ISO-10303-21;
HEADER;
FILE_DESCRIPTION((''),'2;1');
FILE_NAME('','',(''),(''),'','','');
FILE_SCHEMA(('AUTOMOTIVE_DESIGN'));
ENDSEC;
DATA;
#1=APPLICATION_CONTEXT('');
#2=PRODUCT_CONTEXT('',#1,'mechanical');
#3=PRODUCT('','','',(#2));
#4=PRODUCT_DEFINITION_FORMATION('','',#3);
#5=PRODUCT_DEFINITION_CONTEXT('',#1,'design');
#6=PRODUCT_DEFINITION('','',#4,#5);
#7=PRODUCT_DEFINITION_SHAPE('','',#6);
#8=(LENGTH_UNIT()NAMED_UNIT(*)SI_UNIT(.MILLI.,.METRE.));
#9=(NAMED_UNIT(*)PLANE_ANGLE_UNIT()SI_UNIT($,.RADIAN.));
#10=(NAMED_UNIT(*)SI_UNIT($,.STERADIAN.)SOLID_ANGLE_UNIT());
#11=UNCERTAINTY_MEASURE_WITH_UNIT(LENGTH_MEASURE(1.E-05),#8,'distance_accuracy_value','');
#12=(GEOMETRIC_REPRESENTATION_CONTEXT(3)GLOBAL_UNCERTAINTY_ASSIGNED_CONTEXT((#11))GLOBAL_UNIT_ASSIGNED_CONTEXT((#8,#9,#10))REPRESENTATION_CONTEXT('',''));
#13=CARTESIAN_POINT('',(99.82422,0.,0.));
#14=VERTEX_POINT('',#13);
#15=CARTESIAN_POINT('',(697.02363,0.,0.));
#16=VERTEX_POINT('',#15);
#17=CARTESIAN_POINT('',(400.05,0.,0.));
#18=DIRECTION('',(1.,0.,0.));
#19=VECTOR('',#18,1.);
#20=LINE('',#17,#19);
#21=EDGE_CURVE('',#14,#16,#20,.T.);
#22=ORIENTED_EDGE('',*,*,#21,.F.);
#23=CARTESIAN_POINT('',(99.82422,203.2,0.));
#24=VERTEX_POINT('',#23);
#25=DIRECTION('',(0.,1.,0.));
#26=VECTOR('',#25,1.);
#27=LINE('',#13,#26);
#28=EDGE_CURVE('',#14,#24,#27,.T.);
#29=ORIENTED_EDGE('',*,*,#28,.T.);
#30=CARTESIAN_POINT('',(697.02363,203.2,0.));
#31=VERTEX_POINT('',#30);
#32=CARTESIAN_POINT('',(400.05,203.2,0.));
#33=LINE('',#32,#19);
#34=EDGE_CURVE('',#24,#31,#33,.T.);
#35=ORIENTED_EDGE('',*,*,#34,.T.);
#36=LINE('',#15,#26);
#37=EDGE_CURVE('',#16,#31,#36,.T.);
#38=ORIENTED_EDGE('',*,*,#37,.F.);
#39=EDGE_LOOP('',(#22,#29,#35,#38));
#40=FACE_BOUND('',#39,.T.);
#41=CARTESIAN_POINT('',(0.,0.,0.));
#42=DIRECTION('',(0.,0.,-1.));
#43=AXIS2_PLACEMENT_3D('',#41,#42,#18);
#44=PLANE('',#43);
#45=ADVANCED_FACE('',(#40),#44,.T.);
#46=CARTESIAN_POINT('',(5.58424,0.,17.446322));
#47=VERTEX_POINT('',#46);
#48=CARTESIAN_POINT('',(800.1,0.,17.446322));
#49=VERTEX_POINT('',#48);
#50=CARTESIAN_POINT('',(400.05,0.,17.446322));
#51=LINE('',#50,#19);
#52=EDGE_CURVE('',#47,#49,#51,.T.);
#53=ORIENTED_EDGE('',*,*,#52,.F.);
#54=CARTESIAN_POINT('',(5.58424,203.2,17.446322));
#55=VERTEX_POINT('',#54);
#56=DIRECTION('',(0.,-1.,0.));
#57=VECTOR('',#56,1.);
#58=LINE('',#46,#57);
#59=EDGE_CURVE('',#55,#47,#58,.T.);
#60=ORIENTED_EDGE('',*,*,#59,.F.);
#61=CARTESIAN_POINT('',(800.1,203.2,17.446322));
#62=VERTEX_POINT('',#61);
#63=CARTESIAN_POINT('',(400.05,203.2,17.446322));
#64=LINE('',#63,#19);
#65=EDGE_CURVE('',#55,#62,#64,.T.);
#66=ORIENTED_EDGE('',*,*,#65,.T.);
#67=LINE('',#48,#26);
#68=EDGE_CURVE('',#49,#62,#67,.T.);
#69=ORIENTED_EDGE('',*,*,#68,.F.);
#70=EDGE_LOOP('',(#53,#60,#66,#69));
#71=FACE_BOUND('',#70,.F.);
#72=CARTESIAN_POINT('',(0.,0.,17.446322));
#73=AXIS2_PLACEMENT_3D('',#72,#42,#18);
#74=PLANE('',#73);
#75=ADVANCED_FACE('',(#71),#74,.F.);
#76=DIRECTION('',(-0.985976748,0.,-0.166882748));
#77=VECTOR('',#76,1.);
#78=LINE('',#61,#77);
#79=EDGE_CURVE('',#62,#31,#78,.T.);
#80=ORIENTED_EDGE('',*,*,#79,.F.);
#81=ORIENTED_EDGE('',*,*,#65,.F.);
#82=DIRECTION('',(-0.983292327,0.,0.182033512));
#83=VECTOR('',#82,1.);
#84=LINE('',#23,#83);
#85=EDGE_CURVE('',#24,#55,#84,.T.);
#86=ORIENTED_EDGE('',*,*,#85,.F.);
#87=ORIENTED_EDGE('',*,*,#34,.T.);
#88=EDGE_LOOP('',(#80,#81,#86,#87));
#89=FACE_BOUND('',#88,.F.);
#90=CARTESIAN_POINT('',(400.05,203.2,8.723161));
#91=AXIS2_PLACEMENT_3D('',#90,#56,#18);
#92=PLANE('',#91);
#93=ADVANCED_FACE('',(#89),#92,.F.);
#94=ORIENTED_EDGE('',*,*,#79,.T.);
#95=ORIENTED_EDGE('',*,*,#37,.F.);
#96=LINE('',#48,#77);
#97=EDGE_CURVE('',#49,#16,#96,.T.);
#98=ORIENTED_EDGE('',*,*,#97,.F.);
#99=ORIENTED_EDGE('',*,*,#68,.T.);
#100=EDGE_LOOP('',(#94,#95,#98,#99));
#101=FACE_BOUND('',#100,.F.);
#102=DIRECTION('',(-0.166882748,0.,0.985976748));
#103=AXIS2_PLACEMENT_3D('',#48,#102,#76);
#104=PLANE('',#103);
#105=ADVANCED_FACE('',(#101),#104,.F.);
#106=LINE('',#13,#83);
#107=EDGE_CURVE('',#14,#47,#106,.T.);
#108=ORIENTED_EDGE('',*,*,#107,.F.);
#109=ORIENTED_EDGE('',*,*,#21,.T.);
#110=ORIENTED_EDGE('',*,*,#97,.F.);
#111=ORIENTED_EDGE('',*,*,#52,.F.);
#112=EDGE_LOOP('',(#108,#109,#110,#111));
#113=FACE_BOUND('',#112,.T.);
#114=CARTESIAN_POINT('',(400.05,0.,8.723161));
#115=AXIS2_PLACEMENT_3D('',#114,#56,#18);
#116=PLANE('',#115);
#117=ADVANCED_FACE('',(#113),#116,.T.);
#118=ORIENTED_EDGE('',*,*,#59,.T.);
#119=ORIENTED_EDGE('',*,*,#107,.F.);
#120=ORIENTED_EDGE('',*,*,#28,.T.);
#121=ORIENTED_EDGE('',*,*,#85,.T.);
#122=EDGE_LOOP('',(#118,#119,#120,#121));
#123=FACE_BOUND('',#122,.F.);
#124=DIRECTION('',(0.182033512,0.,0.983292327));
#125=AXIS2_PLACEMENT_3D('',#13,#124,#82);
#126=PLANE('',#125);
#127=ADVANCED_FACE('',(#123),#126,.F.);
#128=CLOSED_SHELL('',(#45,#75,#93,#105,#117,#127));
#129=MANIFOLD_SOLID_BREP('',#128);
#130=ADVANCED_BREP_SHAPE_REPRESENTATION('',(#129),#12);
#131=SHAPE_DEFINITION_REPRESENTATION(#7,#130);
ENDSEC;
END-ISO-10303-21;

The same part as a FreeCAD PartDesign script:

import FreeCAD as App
import Part
import Sketcher
from FreeCAD import Vector
Q = App.Units.Quantity


def add_polygon(sketch, points):
    """Adds a closed chain of lines whose ends are joined by coincident constraints."""
    first, n = sketch.GeometryCount, len(points)
    for a, b in zip(points, points[1:] + points[:1]):
        sketch.addGeometry(Part.LineSegment(App.Vector(*a, 0), App.Vector(*b, 0)), False)
    for i in range(n):
        sketch.addConstraint(Sketcher.Constraint("Coincident", first + i, 2, first + (i + 1) % n, 1))

doc = App.newDocument("Part")
body = doc.addObject("PartDesign::Body", "Body")

# Sketch on XZ plane
sketch1 = body.newObject("Sketcher::SketchObject", "Sketch")
sketch1.AttachmentSupport = (doc.getObject("XZ_Plane"), [""])
sketch1.MapMode = "FlatFace"
add_polygon(sketch1, [(0, 17), (0, 0), (800, 0), (800, 17)])  # lines 0-3
sketch1.addConstraint(Sketcher.Constraint("Vertical", 0))
sketch1.addConstraint(Sketcher.Constraint("Horizontal", 1))
sketch1.addConstraint(Sketcher.Constraint("Vertical", 2))
sketch1.addConstraint(Sketcher.Constraint("Horizontal", 3))
sketch1.addConstraint(Sketcher.Constraint("Coincident", 0, 2, -1, 1))
sketch1.addConstraint(Sketcher.Constraint("DistanceX", 1, 1, 1, 2, Q("31.5 in")))
sketch1.addConstraint(Sketcher.Constraint("DistanceY", 0, 2, 0, 1, Q("17.446322 mm")))
pad1 = body.newObject("PartDesign::Pad", "Pad")
pad1.Profile = sketch1
pad1.Length = Q("8 in")
pad1.Reversed = True

# Sketch on XZ plane
sketch2 = body.newObject("Sketcher::SketchObject", "Sketch001")
sketch2.AttachmentSupport = (doc.getObject("XZ_Plane"), [""])
sketch2.MapMode = "FlatFace"
add_polygon(sketch2, [(0, 18), (0, 0), (100, 0)])  # lines 0-2
sketch2.addConstraint(Sketcher.Constraint("Vertical", 0))
sketch2.addConstraint(Sketcher.Constraint("Horizontal", 1))
sketch2.addConstraint(Sketcher.Constraint("Coincident", 0, 2, -1, 1))
sketch2.addConstraint(Sketcher.Constraint("DistanceX", 1, 1, 1, 2, Q("99.82422 mm")))
sketch2.addConstraint(Sketcher.Constraint("Distance", 2, Q("101.520389 mm")))
pocket1 = body.newObject("PartDesign::Pocket", "Pocket")
pocket1.Profile = sketch2
pocket1.Length = Q("8 in")

# Sketch on XZ plane
sketch3 = body.newObject("Sketcher::SketchObject", "Sketch002")
sketch3.AttachmentSupport = (doc.getObject("XZ_Plane"), [""])
sketch3.MapMode = "FlatFace"
add_polygon(sketch3, [(800, 17), (697, 0), (800, 0)])  # lines 0-2
sketch3.addConstraint(Sketcher.Constraint("Horizontal", 1))
sketch3.addConstraint(Sketcher.Constraint("Vertical", 2))
sketch3.addConstraint(Sketcher.Constraint("PointOnObject", 0, 2, -1))
sketch3.addConstraint(Sketcher.Constraint("DistanceX", -1, 1, 1, 2, Q("31.5 in")))
sketch3.addConstraint(Sketcher.Constraint("DistanceX", 1, 1, 1, 2, Q("103.07637 mm")))
sketch3.addConstraint(Sketcher.Constraint("DistanceY", 2, 1, 2, 2, Q("17.446322 mm")))
pocket2 = body.newObject("PartDesign::Pocket", "Pocket001")
pocket2.Profile = sketch3
pocket2.Length = Q("8 in")

doc.recompute()
